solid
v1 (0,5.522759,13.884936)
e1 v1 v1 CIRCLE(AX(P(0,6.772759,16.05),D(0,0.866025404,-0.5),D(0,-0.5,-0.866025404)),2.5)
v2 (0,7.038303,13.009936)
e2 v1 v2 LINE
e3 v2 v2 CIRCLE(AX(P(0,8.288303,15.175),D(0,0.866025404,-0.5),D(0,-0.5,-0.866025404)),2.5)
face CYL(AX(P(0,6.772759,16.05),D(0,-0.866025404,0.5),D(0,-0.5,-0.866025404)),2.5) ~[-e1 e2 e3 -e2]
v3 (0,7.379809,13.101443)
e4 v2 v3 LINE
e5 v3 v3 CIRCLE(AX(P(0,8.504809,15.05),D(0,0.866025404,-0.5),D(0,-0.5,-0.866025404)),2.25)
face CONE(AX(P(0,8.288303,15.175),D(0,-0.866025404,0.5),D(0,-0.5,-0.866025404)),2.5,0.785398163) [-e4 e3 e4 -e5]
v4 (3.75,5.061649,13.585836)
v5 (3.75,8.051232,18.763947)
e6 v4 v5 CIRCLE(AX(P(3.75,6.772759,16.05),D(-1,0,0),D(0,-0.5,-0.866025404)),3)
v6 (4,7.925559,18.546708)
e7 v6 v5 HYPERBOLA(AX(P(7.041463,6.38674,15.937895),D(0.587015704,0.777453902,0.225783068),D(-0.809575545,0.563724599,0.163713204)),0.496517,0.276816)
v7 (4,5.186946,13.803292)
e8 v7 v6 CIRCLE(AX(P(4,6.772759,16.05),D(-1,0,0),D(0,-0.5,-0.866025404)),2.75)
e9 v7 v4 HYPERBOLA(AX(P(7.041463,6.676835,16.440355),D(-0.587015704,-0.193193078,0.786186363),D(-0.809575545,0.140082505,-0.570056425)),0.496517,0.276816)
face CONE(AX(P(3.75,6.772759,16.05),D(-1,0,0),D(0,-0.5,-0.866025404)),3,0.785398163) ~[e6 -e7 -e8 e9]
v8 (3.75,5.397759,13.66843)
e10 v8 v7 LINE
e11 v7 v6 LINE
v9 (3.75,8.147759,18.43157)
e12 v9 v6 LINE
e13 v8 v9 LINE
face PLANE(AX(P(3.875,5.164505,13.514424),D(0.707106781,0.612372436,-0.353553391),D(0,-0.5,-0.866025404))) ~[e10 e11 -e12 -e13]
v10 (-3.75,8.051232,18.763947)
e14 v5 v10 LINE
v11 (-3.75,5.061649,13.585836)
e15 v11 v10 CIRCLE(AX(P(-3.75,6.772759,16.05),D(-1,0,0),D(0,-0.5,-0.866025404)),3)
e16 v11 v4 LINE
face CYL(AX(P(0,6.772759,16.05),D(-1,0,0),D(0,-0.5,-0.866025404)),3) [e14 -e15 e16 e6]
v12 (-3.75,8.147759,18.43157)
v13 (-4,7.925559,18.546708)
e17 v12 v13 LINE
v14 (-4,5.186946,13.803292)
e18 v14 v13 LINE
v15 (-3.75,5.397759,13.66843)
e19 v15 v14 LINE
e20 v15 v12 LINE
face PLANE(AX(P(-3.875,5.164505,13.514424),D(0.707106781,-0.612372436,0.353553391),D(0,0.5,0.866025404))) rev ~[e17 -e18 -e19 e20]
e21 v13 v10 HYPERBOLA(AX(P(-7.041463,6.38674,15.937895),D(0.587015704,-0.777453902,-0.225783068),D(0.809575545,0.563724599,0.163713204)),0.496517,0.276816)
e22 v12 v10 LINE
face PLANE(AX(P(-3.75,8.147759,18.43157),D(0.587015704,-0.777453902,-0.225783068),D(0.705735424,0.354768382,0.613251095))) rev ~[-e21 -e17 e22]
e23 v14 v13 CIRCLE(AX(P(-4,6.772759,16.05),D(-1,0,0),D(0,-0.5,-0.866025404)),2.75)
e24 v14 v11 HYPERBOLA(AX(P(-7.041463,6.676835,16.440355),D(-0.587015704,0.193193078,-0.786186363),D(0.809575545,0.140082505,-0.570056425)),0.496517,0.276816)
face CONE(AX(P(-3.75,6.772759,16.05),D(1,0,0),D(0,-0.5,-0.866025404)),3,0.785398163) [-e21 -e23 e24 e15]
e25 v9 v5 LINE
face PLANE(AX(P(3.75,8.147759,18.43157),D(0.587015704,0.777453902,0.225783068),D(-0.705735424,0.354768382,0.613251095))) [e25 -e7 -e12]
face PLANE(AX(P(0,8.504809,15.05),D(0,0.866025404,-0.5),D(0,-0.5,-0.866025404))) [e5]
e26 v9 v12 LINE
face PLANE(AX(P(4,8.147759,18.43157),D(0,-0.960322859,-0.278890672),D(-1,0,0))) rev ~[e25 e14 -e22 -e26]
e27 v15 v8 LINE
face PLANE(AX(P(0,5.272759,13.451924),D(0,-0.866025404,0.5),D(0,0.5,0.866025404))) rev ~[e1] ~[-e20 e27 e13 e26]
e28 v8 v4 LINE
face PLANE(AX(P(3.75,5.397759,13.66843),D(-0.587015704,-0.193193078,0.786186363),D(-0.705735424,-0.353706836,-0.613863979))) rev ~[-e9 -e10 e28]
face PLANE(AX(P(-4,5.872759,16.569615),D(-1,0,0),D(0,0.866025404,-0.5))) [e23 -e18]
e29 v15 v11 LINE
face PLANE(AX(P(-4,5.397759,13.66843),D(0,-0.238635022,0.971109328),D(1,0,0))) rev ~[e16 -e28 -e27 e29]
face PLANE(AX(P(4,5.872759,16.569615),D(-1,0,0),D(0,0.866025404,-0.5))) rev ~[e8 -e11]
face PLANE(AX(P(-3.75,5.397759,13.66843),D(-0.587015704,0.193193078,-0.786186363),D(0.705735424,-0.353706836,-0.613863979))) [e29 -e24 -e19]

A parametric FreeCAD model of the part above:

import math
import FreeCAD as App
import Part
import Sketcher
from FreeCAD import Vector


def edges_at(feature, points):
    """Names of the edges that pass closest to the given points."""
    edges = feature.Shape.Edges
    near = lambda p: min(range(len(edges)), key=lambda i: edges[i].distToShape(Part.Vertex(*p))[0])
    return sorted({f"Edge{near(p) + 1}" for p in points})

doc = App.newDocument("Part")
body = doc.addObject("PartDesign::Body", "Body")

sketch1 = doc.addObject("Sketcher::SketchObject", "Sketch")
body.addObject(sketch1)
sketch1.AttachmentSupport = (doc.YZ_Plane, [""])
sketch1.MapMode = "FlatFace"
sketch1.addGeometry([
    Part.ArcOfCircle(Part.Circle(Vector(0, 0, 0), Vector(0, 0, 1), 3), math.radians(90), math.radians(270)),
    Part.LineSegment(Vector(0, -3, 0), Vector(0, 3, 0)),
], False)
sketch1.addConstraint([
    Sketcher.Constraint("Coincident", 0, 1, 1, 2),
    Sketcher.Constraint("Coincident", 1, 1, 0, 2),
    Sketcher.Constraint("Vertical", 1),
    Sketcher.Constraint("Coincident", 0, 3, -1, 1),
    Sketcher.Constraint("PointOnObject", 0, 1, -2),
    Sketcher.Constraint("Radius", 0, 3.0),
])
pad1 = doc.addObject("PartDesign::Pad", "Pad")
body.addObject(pad1)
pad1.Profile = sketch1
pad1.Length = 8
pad1.Midplane = True

sketch2 = doc.addObject("Sketcher::SketchObject", "Sketch001")
body.addObject(sketch2)
sketch2.AttachmentSupport = (doc.XZ_Plane, [""])
sketch2.MapMode = "FlatFace"
sketch2.addGeometry(Part.Circle(Vector(0, 0, 0), Vector(0, 0, 1), 2.5), False)
sketch2.addConstraint([
    Sketcher.Constraint("Coincident", 0, 3, -1, 1),
    Sketcher.Constraint("Diameter", 0, 5.0),
])
pad2 = doc.addObject("PartDesign::Pad", "Pad001")
body.addObject(pad2)
pad2.Profile = sketch2
pad2.Length = 2
pad2.Reversed = True
doc.recompute()

chamfer = doc.addObject("PartDesign::Chamfer", "Chamfer")
body.addObject(chamfer)
chamfer.Base = (pad2, edges_at(pad2, [
    (0, 2, -2.5),
    (-4, -3, 0),
    (-4, 0, 0),
    (4, -3, 0),
    (4, 0, 0),
    (0, 0, -3),
    (0, 0, 3),
]))
chamfer.Size = 0.25
body2 = doc.addObject("PartDesign::Body", "Body001")
doc.recompute()

body.Placement = App.Placement(Vector(0, 0, 0), App.Rotation(Vector(1, 0, 0), 210))
boolean = doc.addObject("PartDesign::Boolean", "Boolean")
body2.addObject(boolean)
boolean.Type = "Fuse"
boolean.addObjects([body])
body3 = doc.addObject("PartDesign::Body", "Body002")
doc.recompute()

body2.Placement = App.Placement(Vector(0, 6.772759, 16.05), App.Rotation(Vector(0, 0, 1), 180))
boolean2 = doc.addObject("PartDesign::Boolean", "Boolean001")
body3.addObject(boolean2)
boolean2.Type = "Fuse"
boolean2.addObjects([body2])

doc.recompute()
